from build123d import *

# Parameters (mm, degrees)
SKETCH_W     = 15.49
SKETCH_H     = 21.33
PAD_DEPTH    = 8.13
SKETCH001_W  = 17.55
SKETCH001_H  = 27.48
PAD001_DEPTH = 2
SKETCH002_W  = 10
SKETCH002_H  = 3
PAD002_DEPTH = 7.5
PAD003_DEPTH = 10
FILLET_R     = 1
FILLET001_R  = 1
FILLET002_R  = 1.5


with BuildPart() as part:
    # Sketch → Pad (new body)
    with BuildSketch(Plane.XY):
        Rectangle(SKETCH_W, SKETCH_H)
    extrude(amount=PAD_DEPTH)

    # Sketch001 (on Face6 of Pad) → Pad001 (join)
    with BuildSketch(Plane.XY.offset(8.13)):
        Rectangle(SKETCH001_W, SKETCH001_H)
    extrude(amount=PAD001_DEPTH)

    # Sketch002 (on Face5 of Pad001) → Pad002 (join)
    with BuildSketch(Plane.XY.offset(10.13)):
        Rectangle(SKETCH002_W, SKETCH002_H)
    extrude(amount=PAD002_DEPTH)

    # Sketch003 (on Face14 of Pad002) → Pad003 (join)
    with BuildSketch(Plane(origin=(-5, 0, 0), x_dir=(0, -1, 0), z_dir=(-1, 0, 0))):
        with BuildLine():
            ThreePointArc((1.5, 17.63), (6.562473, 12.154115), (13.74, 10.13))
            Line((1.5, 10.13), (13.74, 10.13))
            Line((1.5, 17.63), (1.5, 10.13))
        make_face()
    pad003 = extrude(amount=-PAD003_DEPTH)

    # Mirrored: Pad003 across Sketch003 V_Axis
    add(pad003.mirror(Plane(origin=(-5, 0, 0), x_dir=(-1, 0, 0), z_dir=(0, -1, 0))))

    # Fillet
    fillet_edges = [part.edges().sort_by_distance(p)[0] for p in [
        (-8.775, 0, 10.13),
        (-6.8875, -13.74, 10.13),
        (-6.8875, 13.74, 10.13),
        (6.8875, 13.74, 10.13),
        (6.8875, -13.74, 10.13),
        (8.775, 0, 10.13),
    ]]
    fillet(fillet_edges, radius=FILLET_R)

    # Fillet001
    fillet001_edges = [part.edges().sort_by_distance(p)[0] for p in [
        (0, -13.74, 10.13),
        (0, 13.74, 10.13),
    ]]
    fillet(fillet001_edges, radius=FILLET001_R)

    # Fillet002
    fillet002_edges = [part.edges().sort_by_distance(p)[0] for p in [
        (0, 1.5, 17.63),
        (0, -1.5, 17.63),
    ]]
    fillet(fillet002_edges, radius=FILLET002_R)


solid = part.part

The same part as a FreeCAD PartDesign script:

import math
import FreeCAD as App
import Part
import Sketcher
from FreeCAD import Vector
Q = App.Units.Quantity


def edges_at(feature, points):
    """Names of the edges that pass closest to the given points."""
    edges = feature.Shape.Edges
    near = lambda p: min(range(len(edges)), key=lambda i: edges[i].distToShape(Part.Vertex(*p))[0])
    return sorted({f"Edge{near(p) + 1}" for p in points})

doc = App.newDocument("Part")
body = doc.addObject("PartDesign::Body", "Body")

# Sketch on XY plane
sketch1 = body.newObject("Sketcher::SketchObject", "Sketch")
sketch1.AttachmentSupport = (doc.getObject("XY_Plane"), [""])
sketch1.MapMode = "FlatFace"
sketch1.addGeometry([
    Part.LineSegment(Vector(-8, 11, 0), Vector(-8, -11, 0)),
    Part.LineSegment(Vector(-8, -11, 0), Vector(8, -11, 0)),
    Part.LineSegment(Vector(8, -11, 0), Vector(8, 11, 0)),
    Part.LineSegment(Vector(8, 11, 0), Vector(-8, 11, 0)),
], False)
sketch1.addConstraint([
    Sketcher.Constraint("Coincident", 0, 2, 1, 1),
    Sketcher.Constraint("Coincident", 1, 2, 2, 1),
    Sketcher.Constraint("Coincident", 2, 2, 3, 1),
    Sketcher.Constraint("Coincident", 3, 2, 0, 1),
    Sketcher.Constraint("Vertical", 0),
    Sketcher.Constraint("Horizontal", 1),
    Sketcher.Constraint("Vertical", 2),
    Sketcher.Constraint("Horizontal", 3),
    Sketcher.Constraint("Symmetric", 0, 2, 2, 2, -1, 1),
    Sketcher.Constraint("DistanceX", 1, 1, 1, 2, Q("15.49 mm")),
    Sketcher.Constraint("DistanceY", 0, 2, 0, 1, Q("21.33 mm")),
])
pad1 = body.newObject("PartDesign::Pad", "Pad")
pad1.Profile = sketch1
pad1.Length = 8.13

# Sketch on XY plane
sketch2 = body.newObject("Sketcher::SketchObject", "Sketch001")
sketch2.AttachmentSupport = (doc.getObject("XY_Plane"), [""])
sketch2.MapMode = "FlatFace"
sketch2.AttachmentOffset = App.Placement(Vector(0, 0, 8.13), App.Rotation())
sketch2.addGeometry([
    Part.LineSegment(Vector(-9, 14, 0), Vector(-9, -14, 0)),
    Part.LineSegment(Vector(-9, -14, 0), Vector(9, -14, 0)),
    Part.LineSegment(Vector(9, -14, 0), Vector(9, 14, 0)),
    Part.LineSegment(Vector(9, 14, 0), Vector(-9, 14, 0)),
], False)
sketch2.addConstraint([
    Sketcher.Constraint("Coincident", 0, 2, 1, 1),
    Sketcher.Constraint("Coincident", 1, 2, 2, 1),
    Sketcher.Constraint("Coincident", 2, 2, 3, 1),
    Sketcher.Constraint("Coincident", 3, 2, 0, 1),
    Sketcher.Constraint("Vertical", 0),
    Sketcher.Constraint("Horizontal", 1),
    Sketcher.Constraint("Vertical", 2),
    Sketcher.Constraint("Horizontal", 3),
    Sketcher.Constraint("Symmetric", 0, 2, 2, 2, -1, 1),
    Sketcher.Constraint("DistanceX", 1, 1, 1, 2, Q("17.55 mm")),
    Sketcher.Constraint("DistanceY", 0, 2, 0, 1, Q("27.48 mm")),
])
pad2 = body.newObject("PartDesign::Pad", "Pad001")
pad2.Profile = sketch2
pad2.Length = 2

# Sketch on XY plane
sketch3 = body.newObject("Sketcher::SketchObject", "Sketch002")
sketch3.AttachmentSupport = (doc.getObject("XY_Plane"), [""])
sketch3.MapMode = "FlatFace"
sketch3.AttachmentOffset = App.Placement(Vector(0, 0, 10.13), App.Rotation())
sketch3.addGeometry([
    Part.LineSegment(Vector(-5, 1.5, 0), Vector(-5, -1.5, 0)),
    Part.LineSegment(Vector(-5, -1.5, 0), Vector(5, -1.5, 0)),
    Part.LineSegment(Vector(5, -1.5, 0), Vector(5, 1.5, 0)),
    Part.LineSegment(Vector(5, 1.5, 0), Vector(-5, 1.5, 0)),
], False)
sketch3.addConstraint([
    Sketcher.Constraint("Coincident", 0, 2, 1, 1),
    Sketcher.Constraint("Coincident", 1, 2, 2, 1),
    Sketcher.Constraint("Coincident", 2, 2, 3, 1),
    Sketcher.Constraint("Coincident", 3, 2, 0, 1),
    Sketcher.Constraint("Vertical", 0),
    Sketcher.Constraint("Horizontal", 1),
    Sketcher.Constraint("Vertical", 2),
    Sketcher.Constraint("Horizontal", 3),
    Sketcher.Constraint("Symmetric", 0, 2, 2, 2, -1, 1),
    Sketcher.Constraint("DistanceX", 1, 1, 1, 2, Q("10 mm")),
    Sketcher.Constraint("DistanceY", 0, 2, 0, 1, Q("3 mm")),
])
pad3 = body.newObject("PartDesign::Pad", "Pad002")
pad3.Profile = sketch3
pad3.Length = 7.5

# Sketch on YZ plane
sketch4 = body.newObject("Sketcher::SketchObject", "Sketch003")
sketch4.AttachmentSupport = (doc.getObject("YZ_Plane"), [""])
sketch4.MapMode = "FlatFace"
sketch4.AttachmentOffset = App.Placement(Vector(0, 0, -5), App.Rotation())
sketch4.addGeometry([
    Part.ArcOfCircle(Part.Circle(Vector(-14, 24, 0), Vector(0, 0, 1), 14), math.radians(-90), math.radians(-27)),
    Part.LineSegment(Vector(-2, 18, 0), Vector(-2, 10, 0)),
    Part.LineSegment(Vector(-2, 10, 0), Vector(-14, 10, 0)),
], False)
sketch4.addConstraint([
    Sketcher.Constraint("Coincident", 0, 2, 1, 1),
    Sketcher.Constraint("Coincident", 1, 2, 2, 1),
    Sketcher.Constraint("Tangent", 2, 2, 0, 1),
    Sketcher.Constraint("Vertical", 1),
    Sketcher.Constraint("Horizontal", 2),
    Sketcher.Constraint("DistanceY", 1, 2, 1, 1, Q("7.5 mm")),
    Sketcher.Constraint("DistanceX", 2, 2, 2, 1, Q("12.24 mm")),
    Sketcher.Constraint("DistanceX", 0, 2, -1, 1, Q("1.5 mm")),
    Sketcher.Constraint("DistanceY", -1, 1, 0, 2, Q("17.63 mm")),
])
pad4 = body.newObject("PartDesign::Pad", "Pad003")
pad4.Profile = sketch4
pad4.Length = 10
doc.recompute()

mirrored = body.newObject("PartDesign::Mirrored", "Mirrored")
mirrored.Originals = [pad4]
mirrored.MirrorPlane = (doc.getObject("XZ_Plane"), [""])
body.Tip = mirrored
doc.recompute()

fillet = body.newObject("PartDesign::Fillet", "Fillet")
fillet.Base = (mirrored, edges_at(mirrored, [
    (-8.775, 0, 10.13),
    (-6.888, -13.74, 10.13),
    (-6.888, 13.74, 10.13),
    (6.888, 13.74, 10.13),
    (6.888, -13.74, 10.13),
    (8.775, 0, 10.13),
]))
fillet.Radius = 1
doc.recompute()

fillet2 = body.newObject("PartDesign::Fillet", "Fillet001")
fillet2.Base = (fillet, edges_at(fillet, [(0, -13.74, 10.13), (0, 13.74, 10.13)]))
fillet2.Radius = 1
doc.recompute()

fillet3 = body.newObject("PartDesign::Fillet", "Fillet002")
fillet3.Base = (fillet2, edges_at(fillet2, [(0, 1.5, 17.63), (0, -1.5, 17.63)]))
fillet3.Radius = 1.5

doc.recompute()
